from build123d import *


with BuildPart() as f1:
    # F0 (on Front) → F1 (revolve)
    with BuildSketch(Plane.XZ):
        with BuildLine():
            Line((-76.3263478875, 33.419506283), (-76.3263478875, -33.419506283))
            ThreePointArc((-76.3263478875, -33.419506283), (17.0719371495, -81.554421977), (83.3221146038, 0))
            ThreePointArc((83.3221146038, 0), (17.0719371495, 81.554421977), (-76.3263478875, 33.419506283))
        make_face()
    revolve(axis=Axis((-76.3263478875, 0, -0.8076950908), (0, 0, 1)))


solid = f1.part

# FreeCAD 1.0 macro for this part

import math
import FreeCAD as App
import Part
import Sketcher

V = App.Vector
Q = App.Units.Quantity

doc = App.newDocument("Part")
body = doc.addObject("PartDesign::Body", "Body")

sketch1 = body.newObject("Sketcher::SketchObject", "Sketch")
sketch1.AttachmentSupport = (doc.getObject("XZ_Plane"), [""])
sketch1.MapMode = "FlatFace"
sketch1.addGeometry([
    Part.LineSegment(V(-76, 33, 0), V(-76, -33, 0)),
    Part.ArcOfCircle(Part.Circle(V(0, 0, 0), V(0, 0, 1), 83), math.radians(-156), math.radians(0)),
    Part.ArcOfCircle(Part.Circle(V(0, 0, 0), V(0, 0, 1), 83), math.radians(0), math.radians(156)),
], False)
sketch1.addGeometry(Part.LineSegment(V(-76, -33, 0), V(-76, 33, 0)), True)
sketch1.addConstraint([
    Sketcher.Constraint("Coincident", 0, 2, 1, 1),
    Sketcher.Constraint("Tangent", 1, 2, 2, 1),
    Sketcher.Constraint("Coincident", 2, 2, 0, 1),
    Sketcher.Constraint("Vertical", 0),
    Sketcher.Constraint("Vertical", 3),
    Sketcher.Constraint("Coincident", 1, 3, -1, 1),
    Sketcher.Constraint("Coincident", 3, 1, 0, 2),
    Sketcher.Constraint("Equal", 1, 2),
    Sketcher.Constraint("PointOnObject", 1, 2, -1),
    Sketcher.Constraint("Equal", 0, 3),
    Sketcher.Constraint("Radius", 1, Q("83.322115 mm")),
    Sketcher.Constraint("DistanceY", 0, 2, 0, 1, Q("66.839013 mm")),
])
revolution = body.newObject("PartDesign::Revolution", "Revolution")
revolution.Profile = sketch1
revolution.ReferenceAxis = (sketch1, ["Axis0"])
revolution.Angle = 360

doc.recompute()
